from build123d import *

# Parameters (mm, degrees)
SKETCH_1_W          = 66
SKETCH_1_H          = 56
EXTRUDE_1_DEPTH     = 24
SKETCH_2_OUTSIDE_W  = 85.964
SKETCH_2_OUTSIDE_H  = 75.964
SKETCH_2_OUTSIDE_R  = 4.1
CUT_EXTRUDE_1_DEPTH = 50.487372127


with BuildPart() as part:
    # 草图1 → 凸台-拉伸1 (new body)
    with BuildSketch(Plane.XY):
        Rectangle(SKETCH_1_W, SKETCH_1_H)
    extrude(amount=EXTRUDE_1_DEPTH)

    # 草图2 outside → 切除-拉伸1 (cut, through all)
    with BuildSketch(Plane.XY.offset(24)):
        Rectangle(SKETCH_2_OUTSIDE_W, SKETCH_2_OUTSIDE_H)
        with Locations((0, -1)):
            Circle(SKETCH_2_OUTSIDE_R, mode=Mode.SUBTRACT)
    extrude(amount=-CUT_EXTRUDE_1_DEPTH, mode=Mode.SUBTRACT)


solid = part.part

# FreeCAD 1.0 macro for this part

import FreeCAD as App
import Part
import Sketcher
Q = App.Units.Quantity


def add_polygon(sketch, points):
    """Adds a closed chain of lines whose ends are joined by coincident constraints."""
    first, n = sketch.GeometryCount, len(points)
    for a, b in zip(points, points[1:] + points[:1]):
        sketch.addGeometry(Part.LineSegment(App.Vector(*a, 0), App.Vector(*b, 0)), False)
    for i in range(n):
        sketch.addConstraint(Sketcher.Constraint("Coincident", first + i, 2, first + (i + 1) % n, 1))

doc = App.newDocument("Part")
body = doc.addObject("PartDesign::Body", "Body")

# Sketch on XY plane
sketch1 = body.newObject("Sketcher::SketchObject", "Sketch")
sketch1.AttachmentSupport = (doc.getObject("XY_Plane"), [""])
sketch1.MapMode = "FlatFace"
add_polygon(sketch1, [(-33, 28), (-33, -28), (33, -28), (33, 28)])  # lines 0-3
sketch1.addConstraint(Sketcher.Constraint("Vertical", 0))
sketch1.addConstraint(Sketcher.Constraint("Horizontal", 1))
sketch1.addConstraint(Sketcher.Constraint("Vertical", 2))
sketch1.addConstraint(Sketcher.Constraint("Horizontal", 3))
sketch1.addConstraint(Sketcher.Constraint("Symmetric", 0, 2, 2, 2, -1, 1))
sketch1.addConstraint(Sketcher.Constraint("DistanceX", 1, 1, 1, 2, Q("66 mm")))
sketch1.addConstraint(Sketcher.Constraint("DistanceY", 0, 2, 0, 1, Q("56 mm")))
pad1 = body.newObject("PartDesign::Pad", "Pad")
pad1.Profile = sketch1
pad1.Length = 24

# Sketch on XY plane
sketch2 = body.newObject("Sketcher::SketchObject", "Sketch001")
sketch2.AttachmentSupport = (doc.getObject("XY_Plane"), [""])
sketch2.MapMode = "FlatFace"
sketch2.AttachmentOffset = App.Placement(App.Vector(0, 0, 24), App.Rotation())
add_polygon(sketch2, [(-42.982, 37.982), (-42.982, -37.982), (42.982, -37.982), (42.982, 37.982)])  # lines 0-3
sketch2.addGeometry(Part.Circle(App.Vector(0, -1, 0), App.Vector(0, 0, 1), 4.1), False)  # 4
sketch2.addConstraint(Sketcher.Constraint("Vertical", 0))
sketch2.addConstraint(Sketcher.Constraint("Horizontal", 1))
sketch2.addConstraint(Sketcher.Constraint("Vertical", 2))
sketch2.addConstraint(Sketcher.Constraint("Horizontal", 3))
sketch2.addConstraint(Sketcher.Constraint("Symmetric", 0, 2, 2, 2, -1, 1))
sketch2.addConstraint(Sketcher.Constraint("PointOnObject", 4, 3, -2))
sketch2.addConstraint(Sketcher.Constraint("Diameter", 4, Q("8.2 mm")))
sketch2.addConstraint(Sketcher.Constraint("DistanceY", 4, 3, -1, 1, Q("1 mm")))
sketch2.addConstraint(Sketcher.Constraint("DistanceX", 1, 1, 1, 2, Q("85.964 mm")))
sketch2.addConstraint(Sketcher.Constraint("DistanceY", 0, 2, 0, 1, Q("75.964 mm")))
pocket1 = body.newObject("PartDesign::Pocket", "Pocket")
pocket1.Profile = sketch2
pocket1.Type = "ThroughAll"

doc.recompute()
